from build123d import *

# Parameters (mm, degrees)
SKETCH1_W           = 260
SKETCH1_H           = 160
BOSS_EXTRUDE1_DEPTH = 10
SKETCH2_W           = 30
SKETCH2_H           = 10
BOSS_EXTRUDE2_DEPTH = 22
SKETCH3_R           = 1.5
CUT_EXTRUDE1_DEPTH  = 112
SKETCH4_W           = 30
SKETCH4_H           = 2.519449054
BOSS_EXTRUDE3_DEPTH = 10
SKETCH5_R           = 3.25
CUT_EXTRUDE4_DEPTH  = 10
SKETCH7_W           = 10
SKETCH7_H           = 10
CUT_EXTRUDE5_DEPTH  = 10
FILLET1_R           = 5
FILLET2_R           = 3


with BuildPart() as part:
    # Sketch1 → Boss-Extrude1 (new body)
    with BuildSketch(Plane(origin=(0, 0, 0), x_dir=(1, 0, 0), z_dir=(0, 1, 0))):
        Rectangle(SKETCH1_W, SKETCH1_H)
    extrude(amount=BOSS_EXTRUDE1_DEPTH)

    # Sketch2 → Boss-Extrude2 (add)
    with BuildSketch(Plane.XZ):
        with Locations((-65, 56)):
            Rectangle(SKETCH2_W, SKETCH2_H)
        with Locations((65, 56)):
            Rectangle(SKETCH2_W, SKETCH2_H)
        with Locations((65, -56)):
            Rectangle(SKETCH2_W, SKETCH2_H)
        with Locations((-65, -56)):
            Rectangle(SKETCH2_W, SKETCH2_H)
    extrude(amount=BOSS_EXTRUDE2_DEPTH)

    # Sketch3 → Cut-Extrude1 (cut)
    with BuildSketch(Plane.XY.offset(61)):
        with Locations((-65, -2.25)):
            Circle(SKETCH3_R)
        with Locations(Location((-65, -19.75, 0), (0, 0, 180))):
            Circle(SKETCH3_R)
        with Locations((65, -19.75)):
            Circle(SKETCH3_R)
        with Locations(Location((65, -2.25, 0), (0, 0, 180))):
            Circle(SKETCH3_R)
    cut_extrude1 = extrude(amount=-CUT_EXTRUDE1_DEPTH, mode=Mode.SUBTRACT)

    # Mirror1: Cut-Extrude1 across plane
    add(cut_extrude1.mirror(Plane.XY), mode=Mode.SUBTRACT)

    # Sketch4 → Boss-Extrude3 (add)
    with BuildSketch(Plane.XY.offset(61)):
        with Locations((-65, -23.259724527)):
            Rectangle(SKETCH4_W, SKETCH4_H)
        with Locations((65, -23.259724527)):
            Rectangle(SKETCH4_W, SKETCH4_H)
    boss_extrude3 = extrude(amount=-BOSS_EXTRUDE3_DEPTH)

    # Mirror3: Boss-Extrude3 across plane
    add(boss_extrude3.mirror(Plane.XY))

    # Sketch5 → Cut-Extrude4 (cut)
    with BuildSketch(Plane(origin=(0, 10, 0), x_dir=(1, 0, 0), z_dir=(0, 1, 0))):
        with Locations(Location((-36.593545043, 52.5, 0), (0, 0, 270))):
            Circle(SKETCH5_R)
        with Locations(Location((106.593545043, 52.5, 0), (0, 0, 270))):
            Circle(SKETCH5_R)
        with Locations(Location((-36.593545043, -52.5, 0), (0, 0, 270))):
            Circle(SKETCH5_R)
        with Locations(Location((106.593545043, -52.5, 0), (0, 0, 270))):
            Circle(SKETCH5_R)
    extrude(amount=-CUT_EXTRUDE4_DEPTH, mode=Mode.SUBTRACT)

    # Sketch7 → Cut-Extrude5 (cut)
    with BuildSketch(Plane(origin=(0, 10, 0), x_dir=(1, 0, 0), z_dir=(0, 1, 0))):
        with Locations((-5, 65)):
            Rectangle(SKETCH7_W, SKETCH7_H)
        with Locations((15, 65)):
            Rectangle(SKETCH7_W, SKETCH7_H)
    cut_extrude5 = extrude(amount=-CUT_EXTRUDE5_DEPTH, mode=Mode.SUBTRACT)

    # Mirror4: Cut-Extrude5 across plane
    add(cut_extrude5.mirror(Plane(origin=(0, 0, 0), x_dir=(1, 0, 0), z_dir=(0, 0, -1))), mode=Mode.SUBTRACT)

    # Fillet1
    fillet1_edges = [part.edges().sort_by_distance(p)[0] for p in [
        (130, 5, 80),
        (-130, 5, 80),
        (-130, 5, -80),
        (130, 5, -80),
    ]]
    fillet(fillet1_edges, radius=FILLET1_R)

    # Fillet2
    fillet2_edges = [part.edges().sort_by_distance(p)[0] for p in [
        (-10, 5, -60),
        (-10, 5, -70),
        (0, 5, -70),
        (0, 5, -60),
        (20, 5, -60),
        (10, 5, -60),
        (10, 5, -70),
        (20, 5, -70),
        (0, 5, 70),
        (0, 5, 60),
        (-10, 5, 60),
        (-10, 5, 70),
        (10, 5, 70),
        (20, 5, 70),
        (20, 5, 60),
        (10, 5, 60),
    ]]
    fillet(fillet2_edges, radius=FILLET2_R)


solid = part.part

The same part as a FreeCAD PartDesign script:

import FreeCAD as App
import Part
import Sketcher

V = App.Vector
Q = App.Units.Quantity


def edges_at(feature, points):
    """Names of the edges that pass closest to the given points."""
    edges = feature.Shape.Edges
    near = lambda p: min(range(len(edges)), key=lambda i: edges[i].distToShape(Part.Vertex(*p))[0])
    return sorted({f"Edge{near(p) + 1}" for p in points})


def add_polygon(sketch, points):
    """Adds a closed chain of lines whose ends are joined by coincident constraints."""
    first, n = sketch.GeometryCount, len(points)
    for a, b in zip(points, points[1:] + points[:1]):
        sketch.addGeometry(Part.LineSegment(App.Vector(*a, 0), App.Vector(*b, 0)), False)
    for i in range(n):
        sketch.addConstraint(Sketcher.Constraint("Coincident", first + i, 2, first + (i + 1) % n, 1))

doc = App.newDocument("Part")
body = doc.addObject("PartDesign::Body", "Body")

# Sketch on XZ plane
sketch1 = doc.addObject("Sketcher::SketchObject", "Sketch")
body.addObject(sketch1)
sketch1.AttachmentSupport = (doc.XZ_Plane, [""])
sketch1.MapMode = "FlatFace"
add_polygon(sketch1, [(-130, -80), (-130, 80), (130, 80), (130, -80)])  # lines 0-3
sketch1.addConstraint(Sketcher.Constraint("Vertical", 0))
sketch1.addConstraint(Sketcher.Constraint("Horizontal", 1))
sketch1.addConstraint(Sketcher.Constraint("Vertical", 2))
sketch1.addConstraint(Sketcher.Constraint("Horizontal", 3))
sketch1.addConstraint(Sketcher.Constraint("Symmetric", 0, 2, 2, 2, -1, 1))
sketch1.addConstraint(Sketcher.Constraint("DistanceX", 1, 1, 1, 2, Q("260 mm")))
sketch1.addConstraint(Sketcher.Constraint("DistanceY", 0, 1, 0, 2, Q("160 mm")))
pad1 = doc.addObject("PartDesign::Pad", "Pad")
body.addObject(pad1)
pad1.Profile = sketch1
pad1.Length = 10
pad1.Reversed = True

# Sketch on XZ plane
sketch2 = doc.addObject("Sketcher::SketchObject", "Sketch001")
body.addObject(sketch2)
sketch2.AttachmentSupport = (doc.XZ_Plane, [""])
sketch2.MapMode = "FlatFace"
add_polygon(sketch2, [(-80, 61), (-80, 51), (-50, 51), (-50, 61)])  # lines 0-3
add_polygon(sketch2, [(50, 61), (50, 51), (80, 51), (80, 61)])  # lines 4-7
add_polygon(sketch2, [(50, -51), (50, -61), (80, -61), (80, -51)])  # lines 8-11
add_polygon(sketch2, [(-80, -51), (-80, -61), (-50, -61), (-50, -51)])  # lines 12-15
sketch2.addConstraint(Sketcher.Constraint("Vertical", 0))
sketch2.addConstraint(Sketcher.Constraint("Horizontal", 1))
sketch2.addConstraint(Sketcher.Constraint("Vertical", 2))
sketch2.addConstraint(Sketcher.Constraint("Horizontal", 3))
sketch2.addConstraint(Sketcher.Constraint("Vertical", 4))
sketch2.addConstraint(Sketcher.Constraint("Horizontal", 5))
sketch2.addConstraint(Sketcher.Constraint("Vertical", 6))
sketch2.addConstraint(Sketcher.Constraint("Horizontal", 7))
sketch2.addConstraint(Sketcher.Constraint("Vertical", 8))
sketch2.addConstraint(Sketcher.Constraint("Horizontal", 9))
sketch2.addConstraint(Sketcher.Constraint("Vertical", 10))
sketch2.addConstraint(Sketcher.Constraint("Horizontal", 11))
sketch2.addConstraint(Sketcher.Constraint("Vertical", 12))
sketch2.addConstraint(Sketcher.Constraint("Horizontal", 13))
sketch2.addConstraint(Sketcher.Constraint("Vertical", 14))
sketch2.addConstraint(Sketcher.Constraint("Horizontal", 15))
sketch2.addConstraint(Sketcher.Constraint("Symmetric", 2, 2, 8, 2, -1, 1))
sketch2.addConstraint(Sketcher.Constraint("Symmetric", 0, 2, 10, 2, -1, 1))
sketch2.addConstraint(Sketcher.Constraint("Symmetric", 6, 2, 12, 2, -1, 1))
sketch2.addConstraint(Sketcher.Constraint("Symmetric", 4, 2, 14, 2, -1, 1))
sketch2.addConstraint(Sketcher.Constraint("Symmetric", 1, 2, 4, 2, -2))
sketch2.addConstraint(Sketcher.Constraint("Symmetric", 3, 2, 6, 2, -2))
sketch2.addConstraint(Sketcher.Constraint("DistanceX", 1, 1, 1, 2, Q("30 mm")))
sketch2.addConstraint(Sketcher.Constraint("DistanceY", 0, 2, 0, 1, Q("10 mm")))
sketch2.addConstraint(Sketcher.Constraint("DistanceX", 0, 2, -1, 1, Q("80 mm")))
sketch2.addConstraint(Sketcher.Constraint("DistanceY", -1, 1, 0, 2, Q("51 mm")))
pad2 = doc.addObject("PartDesign::Pad", "Pad001")
body.addObject(pad2)
pad2.Profile = sketch2
pad2.Length = 22

# Sketch on XY plane
sketch3 = doc.addObject("Sketcher::SketchObject", "Sketch002")
body.addObject(sketch3)
sketch3.AttachmentSupport = (doc.XY_Plane, [""])
sketch3.MapMode = "FlatFace"
sketch3.AttachmentOffset = App.Placement(V(0, 0, 61), App.Rotation())
sketch3.addGeometry(Part.Circle(V(-65, -2.2, 0), V(0, 0, 1), 1.5), False)
sketch3.addGeometry(Part.Circle(V(-65, -19.8, 0), V(0, 0, 1), 1.5), False)
sketch3.addGeometry(Part.Circle(V(65, -19.8, 0), V(0, 0, 1), 1.5), False)
sketch3.addGeometry(Part.Circle(V(65, -2.2, 0), V(0, 0, 1), 1.5), False)
sketch3.addConstraint(Sketcher.Constraint("Equal", 0, 1))
sketch3.addConstraint(Sketcher.Constraint("Equal", 1, 2))
sketch3.addConstraint(Sketcher.Constraint("Equal", 2, 3))
sketch3.addConstraint(Sketcher.Constraint("Symmetric", 1, 3, 2, 3, -2))
sketch3.addConstraint(Sketcher.Constraint("Symmetric", 0, 3, 3, 3, -2))
sketch3.addConstraint(Sketcher.Constraint("Vertical", 0, 3, 1, 3))
sketch3.addConstraint(Sketcher.Constraint("Diameter", 0, Q("3 mm")))
sketch3.addConstraint(Sketcher.Constraint("DistanceX", 0, 3, -1, 1, Q("65 mm")))
sketch3.addConstraint(Sketcher.Constraint("DistanceY", 1, 3, 0, 3, Q("17.5 mm")))
sketch3.addConstraint(Sketcher.Constraint("DistanceY", 0, 3, -1, 1, Q("2.25 mm")))
pocket1 = doc.addObject("PartDesign::Pocket", "Pocket")
body.addObject(pocket1)
pocket1.Profile = sketch3
pocket1.Length = 112
doc.recompute()

mirrored = doc.addObject("PartDesign::Mirrored", "Mirrored")
body.addObject(mirrored)
mirrored.Originals = [pocket1]
mirrored.MirrorPlane = (doc.XY_Plane, [""])
body.Tip = mirrored

# Sketch on XY plane
sketch4 = doc.addObject("Sketcher::SketchObject", "Sketch003")
body.addObject(sketch4)
sketch4.AttachmentSupport = (doc.XY_Plane, [""])
sketch4.MapMode = "FlatFace"
sketch4.AttachmentOffset = App.Placement(V(0, 0, 61), App.Rotation())
add_polygon(sketch4, [(-80, -22), (-80, -24.5), (-50, -24.5), (-50, -22)])  # lines 0-3
add_polygon(sketch4, [(50, -22), (50, -24.5), (80, -24.5), (80, -22)])  # lines 4-7
sketch4.addConstraint(Sketcher.Constraint("Vertical", 0))
sketch4.addConstraint(Sketcher.Constraint("Horizontal", 1))
sketch4.addConstraint(Sketcher.Constraint("Vertical", 2))
sketch4.addConstraint(Sketcher.Constraint("Horizontal", 3))
sketch4.addConstraint(Sketcher.Constraint("Vertical", 4))
sketch4.addConstraint(Sketcher.Constraint("Horizontal", 5))
sketch4.addConstraint(Sketcher.Constraint("Vertical", 6))
sketch4.addConstraint(Sketcher.Constraint("Horizontal", 7))
sketch4.addConstraint(Sketcher.Constraint("Symmetric", 1, 2, 4, 2, -2))
sketch4.addConstraint(Sketcher.Constraint("Symmetric", 3, 2, 6, 2, -2))
sketch4.addConstraint(Sketcher.Constraint("DistanceX", 1, 1, 1, 2, Q("30 mm")))
sketch4.addConstraint(Sketcher.Constraint("DistanceX", 0, 2, -1, 1, Q("80 mm")))
sketch4.addConstraint(Sketcher.Constraint("DistanceY", 2, 2, -1, 1, Q("22 mm")))
sketch4.addConstraint(Sketcher.Constraint("DistanceY", 0, 2, 0, 1, Q("2.519449 mm")))
pad3 = doc.addObject("PartDesign::Pad", "Pad002")
body.addObject(pad3)
pad3.Profile = sketch4
pad3.Length = 10
pad3.Reversed = True
doc.recompute()

mirrored2 = doc.addObject("PartDesign::Mirrored", "Mirrored001")
body.addObject(mirrored2)
mirrored2.Originals = [pad3]
mirrored2.MirrorPlane = (doc.XY_Plane, [""])
body.Tip = mirrored2

# Sketch on XZ plane
sketch5 = doc.addObject("Sketcher::SketchObject", "Sketch004")
body.addObject(sketch5)
sketch5.AttachmentSupport = (doc.XZ_Plane, [""])
sketch5.MapMode = "FlatFace"
sketch5.AttachmentOffset = App.Placement(V(0, 0, -10), App.Rotation())
sketch5.addGeometry(Part.Circle(V(-36.6, -52.5, 0), V(0, 0, 1), 3.2), False)
sketch5.addGeometry(Part.Circle(V(106.6, -52.5, 0), V(0, 0, 1), 3.2), False)
sketch5.addGeometry(Part.Circle(V(-36.6, 52.5, 0), V(0, 0, 1), 3.2), False)
sketch5.addGeometry(Part.Circle(V(106.6, 52.5, 0), V(0, 0, 1), 3.2), False)
sketch5.addConstraint(Sketcher.Constraint("Equal", 0, 1))
sketch5.addConstraint(Sketcher.Constraint("Equal", 1, 2))
sketch5.addConstraint(Sketcher.Constraint("Equal", 2, 3))
sketch5.addConstraint(Sketcher.Constraint("Symmetric", 0, 3, 2, 3, -1))
sketch5.addConstraint(Sketcher.Constraint("Symmetric", 1, 3, 3, 3, -1))
sketch5.addConstraint(Sketcher.Constraint("Horizontal", 0, 3, 1, 3))
sketch5.addConstraint(Sketcher.Constraint("Diameter", 0, Q("6.5 mm")))
sketch5.addConstraint(Sketcher.Constraint("DistanceY", 0, 3, 2, 3, Q("105 mm")))
sketch5.addConstraint(Sketcher.Constraint("DistanceX", 0, 3, 1, 3, Q("143.18709 mm")))
sketch5.addConstraint(Sketcher.Constraint("DistanceX", 0, 3, -1, 1, Q("36.593545 mm")))
pocket2 = doc.addObject("PartDesign::Pocket", "Pocket001")
body.addObject(pocket2)
pocket2.Profile = sketch5
pocket2.Length = 10
pocket2.Reversed = True

# Sketch on XZ plane
sketch6 = doc.addObject("Sketcher::SketchObject", "Sketch005")
body.addObject(sketch6)
sketch6.AttachmentSupport = (doc.XZ_Plane, [""])
sketch6.MapMode = "FlatFace"
sketch6.AttachmentOffset = App.Placement(V(0, 0, -10), App.Rotation())
add_polygon(sketch6, [(-10, -70), (-10, -60), (0, -60), (0, -70)])  # lines 0-3
add_polygon(sketch6, [(10, -70), (10, -60), (20, -60), (20, -70)])  # lines 4-7
sketch6.addConstraint(Sketcher.Constraint("Vertical", 0))
sketch6.addConstraint(Sketcher.Constraint("Horizontal", 1))
sketch6.addConstraint(Sketcher.Constraint("Vertical", 2))
sketch6.addConstraint(Sketcher.Constraint("Horizontal", 3))
sketch6.addConstraint(Sketcher.Constraint("Vertical", 4))
sketch6.addConstraint(Sketcher.Constraint("Horizontal", 5))
sketch6.addConstraint(Sketcher.Constraint("Vertical", 6))
sketch6.addConstraint(Sketcher.Constraint("Horizontal", 7))
sketch6.addConstraint(Sketcher.Constraint("Symmetric", 0, 2, 4, 2, -2))
sketch6.addConstraint(Sketcher.Constraint("PointOnObject", 1, 2, -2))
sketch6.addConstraint(Sketcher.Constraint("Horizontal", 3, 2, 6, 2))
sketch6.addConstraint(Sketcher.Constraint("Equal", 3, 5))
sketch6.addConstraint(Sketcher.Constraint("Equal", 7, 0))
sketch6.addConstraint(Sketcher.Constraint("DistanceX", 1, 1, 1, 2, Q("10 mm")))
sketch6.addConstraint(Sketcher.Constraint("DistanceY", 0, 2, -1, 1, Q("60 mm")))
pocket3 = doc.addObject("PartDesign::Pocket", "Pocket002")
body.addObject(pocket3)
pocket3.Profile = sketch6
pocket3.Length = 10
pocket3.Reversed = True
doc.recompute()

mirrored3 = doc.addObject("PartDesign::Mirrored", "Mirrored002")
body.addObject(mirrored3)
mirrored3.Originals = [pocket3]
mirrored3.MirrorPlane = (doc.XY_Plane, [""])
body.Tip = mirrored3
doc.recompute()

fillet = doc.addObject("PartDesign::Fillet", "Fillet")
body.addObject(fillet)
fillet.Base = (mirrored3, edges_at(mirrored3, [
    (130, 5, 80),
    (-130, 5, 80),
    (-130, 5, -80),
    (130, 5, -80),
]))
fillet.Radius = 5
doc.recompute()

fillet2 = doc.addObject("PartDesign::Fillet", "Fillet001")
body.addObject(fillet2)
fillet2.Base = (fillet, edges_at(fillet, [
    (-10, 5, -60),
    (-10, 5, -70),
    (0, 5, -70),
    (0, 5, -60),
    (20, 5, -60),
    (10, 5, -60),
    (10, 5, -70),
    (20, 5, -70),
    (0, 5, 70),
    (0, 5, 60),
    (-10, 5, 60),
    (-10, 5, 70),
    (10, 5, 70),
    (20, 5, 70),
    (20, 5, 60),
    (10, 5, 60),
]))
fillet2.Radius = 3

doc.recompute()
